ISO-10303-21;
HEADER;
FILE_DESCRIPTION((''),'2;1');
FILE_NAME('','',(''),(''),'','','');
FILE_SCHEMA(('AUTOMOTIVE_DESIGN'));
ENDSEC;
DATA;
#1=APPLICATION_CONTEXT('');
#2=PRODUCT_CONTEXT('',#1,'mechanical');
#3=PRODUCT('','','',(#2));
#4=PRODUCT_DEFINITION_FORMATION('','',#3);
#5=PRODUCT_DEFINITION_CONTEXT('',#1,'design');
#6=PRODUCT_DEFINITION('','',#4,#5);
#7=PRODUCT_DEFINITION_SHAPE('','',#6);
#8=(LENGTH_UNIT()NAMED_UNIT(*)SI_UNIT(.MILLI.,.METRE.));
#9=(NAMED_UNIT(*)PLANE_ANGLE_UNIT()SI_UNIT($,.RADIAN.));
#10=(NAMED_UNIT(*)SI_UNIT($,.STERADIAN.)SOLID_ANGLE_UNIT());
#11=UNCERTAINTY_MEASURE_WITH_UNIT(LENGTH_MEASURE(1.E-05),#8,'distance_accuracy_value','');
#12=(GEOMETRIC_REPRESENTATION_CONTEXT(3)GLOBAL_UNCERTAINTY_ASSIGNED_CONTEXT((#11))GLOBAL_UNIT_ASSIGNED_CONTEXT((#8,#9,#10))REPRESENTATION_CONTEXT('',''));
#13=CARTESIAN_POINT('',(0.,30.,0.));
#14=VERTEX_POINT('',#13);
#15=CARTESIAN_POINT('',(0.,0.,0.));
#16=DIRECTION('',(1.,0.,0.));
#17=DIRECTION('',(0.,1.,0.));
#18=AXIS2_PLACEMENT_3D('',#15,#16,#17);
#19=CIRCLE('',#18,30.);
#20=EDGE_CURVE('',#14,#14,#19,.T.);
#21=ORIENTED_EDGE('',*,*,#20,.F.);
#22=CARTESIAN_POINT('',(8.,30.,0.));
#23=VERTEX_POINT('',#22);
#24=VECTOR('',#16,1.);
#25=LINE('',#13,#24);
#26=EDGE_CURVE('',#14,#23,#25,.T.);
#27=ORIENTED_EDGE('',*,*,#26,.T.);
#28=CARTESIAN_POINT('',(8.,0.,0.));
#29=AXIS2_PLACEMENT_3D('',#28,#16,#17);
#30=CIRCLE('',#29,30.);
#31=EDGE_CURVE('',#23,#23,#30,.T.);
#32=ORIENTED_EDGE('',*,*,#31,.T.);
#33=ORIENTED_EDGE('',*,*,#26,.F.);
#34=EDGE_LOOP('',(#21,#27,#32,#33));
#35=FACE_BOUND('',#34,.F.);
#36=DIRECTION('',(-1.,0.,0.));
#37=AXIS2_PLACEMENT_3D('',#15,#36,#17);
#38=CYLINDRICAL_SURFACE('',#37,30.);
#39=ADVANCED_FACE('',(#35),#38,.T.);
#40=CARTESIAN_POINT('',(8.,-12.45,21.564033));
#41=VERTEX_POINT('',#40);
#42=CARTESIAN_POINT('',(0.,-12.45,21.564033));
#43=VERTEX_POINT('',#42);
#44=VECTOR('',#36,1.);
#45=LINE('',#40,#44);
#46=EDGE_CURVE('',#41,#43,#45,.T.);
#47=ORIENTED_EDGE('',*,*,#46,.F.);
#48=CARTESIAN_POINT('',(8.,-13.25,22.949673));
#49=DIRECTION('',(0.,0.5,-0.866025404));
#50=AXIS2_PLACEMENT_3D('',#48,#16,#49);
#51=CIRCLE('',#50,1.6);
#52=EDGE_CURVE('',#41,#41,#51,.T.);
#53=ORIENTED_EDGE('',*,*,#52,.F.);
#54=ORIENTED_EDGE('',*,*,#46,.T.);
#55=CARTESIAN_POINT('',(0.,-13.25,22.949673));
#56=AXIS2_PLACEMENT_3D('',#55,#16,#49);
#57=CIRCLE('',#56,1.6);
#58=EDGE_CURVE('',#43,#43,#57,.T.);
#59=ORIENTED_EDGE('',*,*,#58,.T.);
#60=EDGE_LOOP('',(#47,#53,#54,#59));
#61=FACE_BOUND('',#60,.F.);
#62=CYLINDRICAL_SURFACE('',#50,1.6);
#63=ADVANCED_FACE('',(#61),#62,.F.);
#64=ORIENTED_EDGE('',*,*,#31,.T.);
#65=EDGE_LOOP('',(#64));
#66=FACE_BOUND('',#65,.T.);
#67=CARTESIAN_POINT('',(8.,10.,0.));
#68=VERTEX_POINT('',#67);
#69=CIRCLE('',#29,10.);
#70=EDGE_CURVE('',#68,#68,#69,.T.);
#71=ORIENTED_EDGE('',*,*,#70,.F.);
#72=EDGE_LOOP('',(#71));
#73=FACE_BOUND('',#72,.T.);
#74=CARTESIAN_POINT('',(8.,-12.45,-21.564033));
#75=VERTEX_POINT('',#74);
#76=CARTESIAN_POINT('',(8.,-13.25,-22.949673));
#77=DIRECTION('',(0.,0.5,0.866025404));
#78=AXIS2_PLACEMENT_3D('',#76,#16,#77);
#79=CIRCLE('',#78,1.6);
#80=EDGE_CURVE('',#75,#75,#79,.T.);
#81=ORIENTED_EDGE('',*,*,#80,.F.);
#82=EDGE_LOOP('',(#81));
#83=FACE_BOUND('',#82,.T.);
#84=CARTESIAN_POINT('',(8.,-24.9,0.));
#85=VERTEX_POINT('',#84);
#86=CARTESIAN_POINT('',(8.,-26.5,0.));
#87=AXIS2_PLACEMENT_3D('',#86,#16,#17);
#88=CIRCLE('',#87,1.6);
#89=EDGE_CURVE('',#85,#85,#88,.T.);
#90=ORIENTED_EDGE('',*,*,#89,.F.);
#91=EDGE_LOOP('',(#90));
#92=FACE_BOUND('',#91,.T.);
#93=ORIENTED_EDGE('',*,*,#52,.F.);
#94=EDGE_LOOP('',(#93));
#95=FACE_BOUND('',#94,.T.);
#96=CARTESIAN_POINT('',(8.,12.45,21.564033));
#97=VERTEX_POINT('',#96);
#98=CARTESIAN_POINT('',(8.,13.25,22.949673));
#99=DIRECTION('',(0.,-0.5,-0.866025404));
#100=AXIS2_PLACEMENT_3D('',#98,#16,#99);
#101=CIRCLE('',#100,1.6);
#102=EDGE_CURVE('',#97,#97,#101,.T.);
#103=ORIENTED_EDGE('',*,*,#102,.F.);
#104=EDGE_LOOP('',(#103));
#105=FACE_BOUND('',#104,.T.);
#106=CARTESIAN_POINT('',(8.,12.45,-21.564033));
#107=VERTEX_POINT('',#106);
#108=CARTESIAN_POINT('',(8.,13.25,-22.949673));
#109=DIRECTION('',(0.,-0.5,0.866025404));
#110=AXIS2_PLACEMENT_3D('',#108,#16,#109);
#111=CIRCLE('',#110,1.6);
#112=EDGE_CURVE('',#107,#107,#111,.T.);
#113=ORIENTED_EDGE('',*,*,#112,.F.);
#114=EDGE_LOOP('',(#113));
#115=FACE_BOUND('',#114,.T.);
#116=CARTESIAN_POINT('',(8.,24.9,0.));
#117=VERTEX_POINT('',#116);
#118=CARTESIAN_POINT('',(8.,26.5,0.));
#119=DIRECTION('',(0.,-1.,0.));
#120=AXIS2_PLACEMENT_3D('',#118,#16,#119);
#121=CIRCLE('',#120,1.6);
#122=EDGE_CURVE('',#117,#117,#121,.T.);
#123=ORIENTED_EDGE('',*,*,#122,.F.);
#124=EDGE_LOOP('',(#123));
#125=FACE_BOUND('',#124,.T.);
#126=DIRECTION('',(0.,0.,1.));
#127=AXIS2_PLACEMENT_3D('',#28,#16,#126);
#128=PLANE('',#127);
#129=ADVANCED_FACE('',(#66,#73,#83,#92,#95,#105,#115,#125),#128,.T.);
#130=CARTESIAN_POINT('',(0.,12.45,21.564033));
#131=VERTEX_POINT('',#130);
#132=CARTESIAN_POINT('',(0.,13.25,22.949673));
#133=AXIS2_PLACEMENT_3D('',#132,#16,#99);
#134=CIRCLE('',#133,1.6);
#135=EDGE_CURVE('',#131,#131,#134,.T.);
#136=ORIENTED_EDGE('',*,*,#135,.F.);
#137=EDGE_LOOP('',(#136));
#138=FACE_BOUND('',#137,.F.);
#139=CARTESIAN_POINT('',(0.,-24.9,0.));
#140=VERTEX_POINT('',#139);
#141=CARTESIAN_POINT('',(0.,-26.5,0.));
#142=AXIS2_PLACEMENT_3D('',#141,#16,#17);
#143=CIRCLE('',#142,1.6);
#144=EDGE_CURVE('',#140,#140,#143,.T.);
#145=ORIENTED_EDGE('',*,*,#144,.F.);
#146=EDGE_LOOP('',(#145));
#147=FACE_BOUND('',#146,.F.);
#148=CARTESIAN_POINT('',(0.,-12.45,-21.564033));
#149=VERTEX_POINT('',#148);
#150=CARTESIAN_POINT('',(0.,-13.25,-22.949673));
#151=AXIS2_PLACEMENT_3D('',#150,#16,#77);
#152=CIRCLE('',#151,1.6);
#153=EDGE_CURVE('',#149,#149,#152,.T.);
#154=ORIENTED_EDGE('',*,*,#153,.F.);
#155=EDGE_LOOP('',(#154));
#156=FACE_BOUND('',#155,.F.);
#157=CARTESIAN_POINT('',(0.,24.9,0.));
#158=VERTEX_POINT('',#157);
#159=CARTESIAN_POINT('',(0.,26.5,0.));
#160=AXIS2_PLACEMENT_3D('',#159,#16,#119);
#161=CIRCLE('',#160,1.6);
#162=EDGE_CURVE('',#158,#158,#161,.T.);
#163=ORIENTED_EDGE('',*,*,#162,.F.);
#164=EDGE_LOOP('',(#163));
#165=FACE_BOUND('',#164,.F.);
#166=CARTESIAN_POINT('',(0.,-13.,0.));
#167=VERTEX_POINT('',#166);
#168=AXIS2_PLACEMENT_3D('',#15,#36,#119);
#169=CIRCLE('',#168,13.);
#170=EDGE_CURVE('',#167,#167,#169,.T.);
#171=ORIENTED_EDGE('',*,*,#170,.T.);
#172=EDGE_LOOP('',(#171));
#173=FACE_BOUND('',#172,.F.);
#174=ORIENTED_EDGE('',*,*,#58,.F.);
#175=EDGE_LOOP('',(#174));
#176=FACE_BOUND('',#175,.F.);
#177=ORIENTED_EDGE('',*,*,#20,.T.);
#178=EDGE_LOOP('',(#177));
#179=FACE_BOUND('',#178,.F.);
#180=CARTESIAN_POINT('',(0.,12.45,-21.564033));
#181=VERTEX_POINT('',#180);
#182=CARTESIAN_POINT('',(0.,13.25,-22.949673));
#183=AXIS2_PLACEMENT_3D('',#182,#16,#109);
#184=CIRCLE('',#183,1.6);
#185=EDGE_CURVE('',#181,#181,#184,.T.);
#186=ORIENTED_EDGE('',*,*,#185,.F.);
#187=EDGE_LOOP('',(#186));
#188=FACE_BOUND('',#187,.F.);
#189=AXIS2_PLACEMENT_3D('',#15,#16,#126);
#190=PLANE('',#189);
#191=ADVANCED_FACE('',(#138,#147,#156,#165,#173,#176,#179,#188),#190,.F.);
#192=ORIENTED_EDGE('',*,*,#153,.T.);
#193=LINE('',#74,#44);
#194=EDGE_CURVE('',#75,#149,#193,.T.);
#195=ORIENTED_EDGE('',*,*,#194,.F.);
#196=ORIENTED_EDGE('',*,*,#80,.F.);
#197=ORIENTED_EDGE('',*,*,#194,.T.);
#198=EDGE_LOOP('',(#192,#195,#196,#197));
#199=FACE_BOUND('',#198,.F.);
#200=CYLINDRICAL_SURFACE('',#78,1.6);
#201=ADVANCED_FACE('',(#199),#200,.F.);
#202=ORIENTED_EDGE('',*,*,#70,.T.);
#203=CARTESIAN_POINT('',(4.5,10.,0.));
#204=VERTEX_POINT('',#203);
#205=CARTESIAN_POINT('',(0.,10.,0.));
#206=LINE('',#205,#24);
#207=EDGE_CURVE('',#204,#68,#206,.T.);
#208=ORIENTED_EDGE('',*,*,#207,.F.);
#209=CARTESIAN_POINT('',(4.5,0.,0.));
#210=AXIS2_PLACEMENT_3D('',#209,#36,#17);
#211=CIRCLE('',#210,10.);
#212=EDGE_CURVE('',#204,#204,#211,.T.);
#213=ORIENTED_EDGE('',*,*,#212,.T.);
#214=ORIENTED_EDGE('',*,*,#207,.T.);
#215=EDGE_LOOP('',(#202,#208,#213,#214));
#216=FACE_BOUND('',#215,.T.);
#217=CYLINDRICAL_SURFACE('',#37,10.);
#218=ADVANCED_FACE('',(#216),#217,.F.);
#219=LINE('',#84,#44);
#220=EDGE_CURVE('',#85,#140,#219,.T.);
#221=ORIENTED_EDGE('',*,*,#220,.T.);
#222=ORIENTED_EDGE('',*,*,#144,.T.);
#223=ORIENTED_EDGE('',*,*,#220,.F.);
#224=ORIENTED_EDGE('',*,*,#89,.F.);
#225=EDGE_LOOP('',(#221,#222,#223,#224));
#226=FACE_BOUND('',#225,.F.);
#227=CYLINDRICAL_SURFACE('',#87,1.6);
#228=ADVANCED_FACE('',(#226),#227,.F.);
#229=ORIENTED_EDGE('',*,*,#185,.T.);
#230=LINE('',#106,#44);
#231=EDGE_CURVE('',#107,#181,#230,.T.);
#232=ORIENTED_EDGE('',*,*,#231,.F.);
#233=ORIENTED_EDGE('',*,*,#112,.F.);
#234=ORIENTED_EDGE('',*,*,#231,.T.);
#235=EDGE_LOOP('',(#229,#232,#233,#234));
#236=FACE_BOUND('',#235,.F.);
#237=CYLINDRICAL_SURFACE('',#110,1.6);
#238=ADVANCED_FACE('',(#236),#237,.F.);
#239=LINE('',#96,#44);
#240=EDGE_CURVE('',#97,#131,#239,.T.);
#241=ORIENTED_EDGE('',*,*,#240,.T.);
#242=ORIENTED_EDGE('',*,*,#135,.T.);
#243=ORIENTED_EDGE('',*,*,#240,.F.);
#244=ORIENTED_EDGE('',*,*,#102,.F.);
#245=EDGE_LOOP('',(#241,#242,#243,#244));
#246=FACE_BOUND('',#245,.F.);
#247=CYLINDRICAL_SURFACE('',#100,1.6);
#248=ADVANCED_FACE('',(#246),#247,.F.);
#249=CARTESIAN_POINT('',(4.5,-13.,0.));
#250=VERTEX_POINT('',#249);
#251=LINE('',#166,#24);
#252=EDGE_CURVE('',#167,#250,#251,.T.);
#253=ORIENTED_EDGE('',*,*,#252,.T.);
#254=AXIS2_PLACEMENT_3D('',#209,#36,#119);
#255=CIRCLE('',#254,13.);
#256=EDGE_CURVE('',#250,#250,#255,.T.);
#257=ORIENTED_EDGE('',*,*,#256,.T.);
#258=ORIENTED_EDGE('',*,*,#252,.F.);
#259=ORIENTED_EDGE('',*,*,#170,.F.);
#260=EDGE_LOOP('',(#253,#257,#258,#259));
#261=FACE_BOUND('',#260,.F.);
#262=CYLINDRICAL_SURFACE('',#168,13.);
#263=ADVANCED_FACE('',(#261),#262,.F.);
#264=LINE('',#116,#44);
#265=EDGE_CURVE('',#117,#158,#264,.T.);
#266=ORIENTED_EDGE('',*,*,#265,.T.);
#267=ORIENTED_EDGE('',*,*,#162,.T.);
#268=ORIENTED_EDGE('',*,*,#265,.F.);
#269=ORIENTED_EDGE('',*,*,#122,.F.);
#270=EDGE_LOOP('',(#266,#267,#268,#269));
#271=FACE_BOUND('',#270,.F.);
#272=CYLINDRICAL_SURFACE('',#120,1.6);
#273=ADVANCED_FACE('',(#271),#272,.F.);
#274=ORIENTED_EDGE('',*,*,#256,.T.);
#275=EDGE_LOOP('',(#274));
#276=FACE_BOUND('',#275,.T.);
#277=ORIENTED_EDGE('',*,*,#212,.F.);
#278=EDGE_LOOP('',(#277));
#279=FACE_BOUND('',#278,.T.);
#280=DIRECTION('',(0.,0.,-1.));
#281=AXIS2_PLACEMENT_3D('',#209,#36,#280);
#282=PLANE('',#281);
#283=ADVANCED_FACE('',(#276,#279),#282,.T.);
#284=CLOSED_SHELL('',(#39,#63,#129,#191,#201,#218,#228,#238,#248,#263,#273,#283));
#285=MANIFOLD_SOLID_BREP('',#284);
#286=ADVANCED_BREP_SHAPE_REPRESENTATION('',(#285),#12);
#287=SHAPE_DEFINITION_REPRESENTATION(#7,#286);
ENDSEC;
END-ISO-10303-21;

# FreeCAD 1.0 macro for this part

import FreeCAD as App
import Part
import Sketcher

V = App.Vector
Q = App.Units.Quantity

doc = App.newDocument("Part")
body = doc.addObject("PartDesign::Body", "Body")

sketch1 = body.newObject("Sketcher::SketchObject", "Sketch")
sketch1.AttachmentSupport = (doc.getObject("YZ_Plane"), [""])
sketch1.MapMode = "FlatFace"
sketch1.addGeometry(Part.Circle(V(0, 0, 0), V(0, 0, 1), 30), False)
sketch1.addGeometry(Part.Circle(V(0, 0, 0), V(0, 0, 1), 10), False)
sketch1.addConstraint(Sketcher.Constraint("Coincident", 0, 3, -1, 1))
sketch1.addConstraint(Sketcher.Constraint("Coincident", 1, 3, -1, 1))
sketch1.addConstraint(Sketcher.Constraint("Diameter", 0, Q("60 mm")))
sketch1.addConstraint(Sketcher.Constraint("Diameter", 1, Q("20 mm")))
pad1 = body.newObject("PartDesign::Pad", "Pad")
pad1.Profile = sketch1
pad1.Length = 8

sketch2 = body.newObject("Sketcher::SketchObject", "Sketch001")
sketch2.AttachmentSupport = (doc.getObject("YZ_Plane"), [""])
sketch2.MapMode = "FlatFace"
sketch2.addGeometry(Part.Circle(V(0, 0, 0), V(0, 0, 1), 13), False)
sketch2.addConstraint(Sketcher.Constraint("Coincident", 0, 3, -1, 1))
sketch2.addConstraint(Sketcher.Constraint("Diameter", 0, Q("26 mm")))
pocket1 = body.newObject("PartDesign::Pocket", "Pocket")
pocket1.Profile = sketch2
pocket1.Length = 4.5
pocket1.Reversed = True

sketch3 = body.newObject("Sketcher::SketchObject", "Sketch002")
sketch3.AttachmentSupport = (doc.getObject("YZ_Plane"), [""])
sketch3.MapMode = "FlatFace"
sketch3.AttachmentOffset = App.Placement(V(0, 0, 8), App.Rotation())
sketch3.addGeometry(Part.Circle(V(-26.5, 0, 0), V(0, 0, 1), 1.6), False)
sketch3.addConstraint(Sketcher.Constraint("PointOnObject", 0, 3, -1))
sketch3.addConstraint(Sketcher.Constraint("Diameter", 0, Q("3.2 mm")))
sketch3.addConstraint(Sketcher.Constraint("DistanceX", 0, 3, -1, 1, Q("26.5 mm")))
pocket2 = body.newObject("PartDesign::Pocket", "Pocket001")
pocket2.Profile = sketch3
pocket2.Type = "UpToFirst"
doc.recompute()

polarpattern = body.newObject("PartDesign::PolarPattern", "PolarPattern")
polarpattern.Originals = [pocket2]
polarpattern.Axis = (doc.getObject("X_Axis"), [""])
polarpattern.Angle = 360
polarpattern.Occurrences = 6
body.Tip = polarpattern

doc.recompute()
